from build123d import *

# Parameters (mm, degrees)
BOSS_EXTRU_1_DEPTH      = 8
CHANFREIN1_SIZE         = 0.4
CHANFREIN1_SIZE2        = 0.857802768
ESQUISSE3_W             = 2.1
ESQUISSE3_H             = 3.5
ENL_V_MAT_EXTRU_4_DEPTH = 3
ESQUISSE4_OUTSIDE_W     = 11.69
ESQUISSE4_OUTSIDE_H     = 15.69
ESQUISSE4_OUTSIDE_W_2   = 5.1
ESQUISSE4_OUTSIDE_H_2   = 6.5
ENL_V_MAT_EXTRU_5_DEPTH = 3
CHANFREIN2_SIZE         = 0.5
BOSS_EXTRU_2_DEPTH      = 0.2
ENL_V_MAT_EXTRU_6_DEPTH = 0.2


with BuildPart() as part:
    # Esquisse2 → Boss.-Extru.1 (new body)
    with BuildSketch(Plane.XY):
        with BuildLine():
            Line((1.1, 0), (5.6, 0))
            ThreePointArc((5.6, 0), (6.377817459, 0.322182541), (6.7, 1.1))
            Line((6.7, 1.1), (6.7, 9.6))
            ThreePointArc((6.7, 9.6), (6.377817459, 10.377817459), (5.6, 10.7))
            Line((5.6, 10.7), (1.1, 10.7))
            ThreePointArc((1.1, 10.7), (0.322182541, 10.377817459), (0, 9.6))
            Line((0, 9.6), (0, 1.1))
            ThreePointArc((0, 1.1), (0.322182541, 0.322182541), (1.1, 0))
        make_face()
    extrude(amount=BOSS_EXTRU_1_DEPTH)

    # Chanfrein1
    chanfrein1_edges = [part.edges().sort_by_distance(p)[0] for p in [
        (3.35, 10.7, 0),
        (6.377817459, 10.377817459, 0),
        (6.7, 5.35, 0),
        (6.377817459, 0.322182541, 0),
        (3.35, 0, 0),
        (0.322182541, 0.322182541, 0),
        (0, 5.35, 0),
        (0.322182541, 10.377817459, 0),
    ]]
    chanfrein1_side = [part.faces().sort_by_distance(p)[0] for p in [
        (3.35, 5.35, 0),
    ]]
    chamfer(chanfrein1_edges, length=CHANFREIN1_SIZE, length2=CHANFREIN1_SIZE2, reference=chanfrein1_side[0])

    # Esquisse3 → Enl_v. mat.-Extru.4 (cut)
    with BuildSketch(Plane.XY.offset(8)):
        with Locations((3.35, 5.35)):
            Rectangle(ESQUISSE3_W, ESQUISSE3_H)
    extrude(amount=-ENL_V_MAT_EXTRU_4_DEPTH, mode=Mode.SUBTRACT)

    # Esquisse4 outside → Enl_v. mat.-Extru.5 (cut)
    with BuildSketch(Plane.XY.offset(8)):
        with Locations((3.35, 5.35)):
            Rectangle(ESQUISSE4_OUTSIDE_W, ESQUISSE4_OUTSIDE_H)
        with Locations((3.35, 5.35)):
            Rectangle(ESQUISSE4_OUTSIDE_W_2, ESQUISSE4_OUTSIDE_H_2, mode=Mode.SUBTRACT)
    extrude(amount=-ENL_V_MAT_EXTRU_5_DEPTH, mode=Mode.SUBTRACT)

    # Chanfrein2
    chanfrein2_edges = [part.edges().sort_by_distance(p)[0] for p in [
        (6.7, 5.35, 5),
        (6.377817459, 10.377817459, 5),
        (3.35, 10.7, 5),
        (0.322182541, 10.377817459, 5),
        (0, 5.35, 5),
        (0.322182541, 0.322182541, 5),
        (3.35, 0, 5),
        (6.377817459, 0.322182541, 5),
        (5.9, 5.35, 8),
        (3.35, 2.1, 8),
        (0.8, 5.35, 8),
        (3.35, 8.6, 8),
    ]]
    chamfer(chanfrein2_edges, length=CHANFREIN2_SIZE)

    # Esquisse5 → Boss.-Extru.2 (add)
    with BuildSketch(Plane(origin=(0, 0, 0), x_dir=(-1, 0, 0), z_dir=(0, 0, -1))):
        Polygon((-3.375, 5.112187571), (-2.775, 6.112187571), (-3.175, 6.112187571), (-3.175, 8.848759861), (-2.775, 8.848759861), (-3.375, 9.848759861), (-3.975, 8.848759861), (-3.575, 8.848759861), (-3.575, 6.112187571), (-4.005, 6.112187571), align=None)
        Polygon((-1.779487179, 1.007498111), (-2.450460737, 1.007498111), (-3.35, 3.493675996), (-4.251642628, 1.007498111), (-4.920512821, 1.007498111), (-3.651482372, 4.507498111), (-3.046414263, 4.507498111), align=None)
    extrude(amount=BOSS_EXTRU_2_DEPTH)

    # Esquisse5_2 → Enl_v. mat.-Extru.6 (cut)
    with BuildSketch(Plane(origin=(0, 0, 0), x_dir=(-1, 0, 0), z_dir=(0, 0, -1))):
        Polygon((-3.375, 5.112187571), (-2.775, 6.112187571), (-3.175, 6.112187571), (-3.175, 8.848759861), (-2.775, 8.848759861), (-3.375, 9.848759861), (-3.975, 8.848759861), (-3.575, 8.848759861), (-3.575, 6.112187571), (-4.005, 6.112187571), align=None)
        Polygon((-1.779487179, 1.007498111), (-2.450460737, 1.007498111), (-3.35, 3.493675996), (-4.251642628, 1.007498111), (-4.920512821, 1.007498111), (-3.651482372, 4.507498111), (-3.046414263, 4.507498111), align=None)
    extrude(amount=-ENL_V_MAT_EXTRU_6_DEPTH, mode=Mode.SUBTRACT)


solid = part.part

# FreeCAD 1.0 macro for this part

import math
import FreeCAD as App
import Part
import Sketcher

V = App.Vector
Q = App.Units.Quantity


def edges_at(feature, points):
    """Names of the edges that pass closest to the given points."""
    edges = feature.Shape.Edges
    near = lambda p: min(range(len(edges)), key=lambda i: edges[i].distToShape(Part.Vertex(*p))[0])
    return sorted({f"Edge{near(p) + 1}" for p in points})


def add_polygon(sketch, points):
    """Adds a closed chain of lines whose ends are joined by coincident constraints."""
    first, n = sketch.GeometryCount, len(points)
    for a, b in zip(points, points[1:] + points[:1]):
        sketch.addGeometry(Part.LineSegment(App.Vector(*a, 0), App.Vector(*b, 0)), False)
    for i in range(n):
        sketch.addConstraint(Sketcher.Constraint("Coincident", first + i, 2, first + (i + 1) % n, 1))

doc = App.newDocument("Part")
body = doc.addObject("PartDesign::Body", "Body")
body.AllowCompound = True

# Sketch on XY plane
sketch1 = body.newObject("Sketcher::SketchObject", "Sketch")
sketch1.AttachmentSupport = (doc.getObject("XY_Plane"), [""])
sketch1.MapMode = "FlatFace"
sketch1.addGeometry([
    Part.LineSegment(V(1.1, 0, 0), V(5.6, 0, 0)),  # 0
    Part.ArcOfCircle(Part.Circle(V(5.6, 1.1, 0), V(0, 0, 1), 1.1), math.radians(-90), math.radians(0)),  # 1
    Part.LineSegment(V(6.7, 1.1, 0), V(6.7, 9.6, 0)),  # 2
    Part.ArcOfCircle(Part.Circle(V(5.6, 9.6, 0), V(0, 0, 1), 1.1), math.radians(0), math.radians(90)),  # 3
    Part.LineSegment(V(5.6, 10.7, 0), V(1.1, 10.7, 0)),  # 4
    Part.ArcOfCircle(Part.Circle(V(1.1, 9.6, 0), V(0, 0, 1), 1.1), math.radians(90), math.radians(180)),  # 5
    Part.LineSegment(V(0, 9.6, 0), V(0, 1.1, 0)),  # 6
    Part.ArcOfCircle(Part.Circle(V(1.1, 1.1, 0), V(0, 0, 1), 1.1), math.radians(-180), math.radians(-90)),  # 7
], False)
sketch1.addConstraint([
    Sketcher.Constraint("Tangent", 0, 2, 1, 1),
    Sketcher.Constraint("Tangent", 1, 2, 2, 1),
    Sketcher.Constraint("Tangent", 2, 2, 3, 1),
    Sketcher.Constraint("Tangent", 3, 2, 4, 1),
    Sketcher.Constraint("Tangent", 4, 2, 5, 1),
    Sketcher.Constraint("Tangent", 5, 2, 6, 1),
    Sketcher.Constraint("Tangent", 6, 2, 7, 1),
    Sketcher.Constraint("Tangent", 7, 2, 0, 1),
    Sketcher.Constraint("Horizontal", 0),
    Sketcher.Constraint("Vertical", 2),
    Sketcher.Constraint("Horizontal", 4),
    Sketcher.Constraint("Vertical", 6),
    Sketcher.Constraint("Equal", 1, 3),
    Sketcher.Constraint("Equal", 3, 5),
    Sketcher.Constraint("Equal", 5, 7),
    Sketcher.Constraint("PointOnObject", 0, 2, -1),
    Sketcher.Constraint("PointOnObject", 5, 2, -2),
    Sketcher.Constraint("Radius", 1, Q("1.1 mm")),
    Sketcher.Constraint("DistanceX", 0, 1, 0, 2, Q("4.5 mm")),
    Sketcher.Constraint("DistanceY", 2, 1, 2, 2, Q("8.5 mm")),
])
pad1 = body.newObject("PartDesign::Pad", "Pad")
pad1.Profile = sketch1
pad1.Length = 8
doc.recompute()

chamfer = body.newObject("PartDesign::Chamfer", "Chamfer")
chamfer.Base = (pad1, edges_at(pad1, [
    (3.35, 10.7, 0),
    (6.378, 10.378, 0),
    (6.7, 5.35, 0),
    (6.378, 0.322, 0),
    (3.35, 0, 0),
    (0.322, 0.322, 0),
    (0, 5.35, 0),
    (0.322, 10.378, 0),
]))
chamfer.ChamferType = "Two distances"
chamfer.Size = 0.4
chamfer.Size2 = 0.857803
chamfer.FlipDirection = True

# Sketch on XY plane
sketch2 = body.newObject("Sketcher::SketchObject", "Sketch001")
sketch2.AttachmentSupport = (doc.getObject("XY_Plane"), [""])
sketch2.MapMode = "FlatFace"
sketch2.AttachmentOffset = App.Placement(V(0, 0, 8), App.Rotation())
add_polygon(sketch2, [(2.3, 7.1), (2.3, 3.6), (4.4, 3.6), (4.4, 7.1)])  # lines 0-3
sketch2.addConstraint([
    Sketcher.Constraint("Vertical", 0),
    Sketcher.Constraint("Horizontal", 1),
    Sketcher.Constraint("Vertical", 2),
    Sketcher.Constraint("Horizontal", 3),
    Sketcher.Constraint("DistanceX", 1, 1, 1, 2, Q("2.1 mm")),
    Sketcher.Constraint("DistanceY", 0, 2, 0, 1, Q("3.5 mm")),
    Sketcher.Constraint("DistanceX", -1, 1, 0, 2, Q("2.3 mm")),
    Sketcher.Constraint("DistanceY", -1, 1, 0, 2, Q("3.6 mm")),
])
pocket1 = body.newObject("PartDesign::Pocket", "Pocket")
pocket1.Profile = sketch2
pocket1.Length = 3

# Sketch on XY plane
sketch3 = body.newObject("Sketcher::SketchObject", "Sketch002")
sketch3.AttachmentSupport = (doc.getObject("XY_Plane"), [""])
sketch3.MapMode = "FlatFace"
sketch3.AttachmentOffset = App.Placement(V(0, 0, 8), App.Rotation())
add_polygon(sketch3, [(-2, 13), (-2, -2), (9, -2), (9, 13)])  # lines 0-3
add_polygon(sketch3, [(6, 2), (1, 2), (1, 9), (6, 9)])  # lines 4-7
sketch3.addConstraint([
    Sketcher.Constraint("Vertical", 0),
    Sketcher.Constraint("Horizontal", 1),
    Sketcher.Constraint("Vertical", 2),
    Sketcher.Constraint("Horizontal", 3),
    Sketcher.Constraint("Horizontal", 4),
    Sketcher.Constraint("Vertical", 5),
    Sketcher.Constraint("Horizontal", 6),
    Sketcher.Constraint("Vertical", 7),
    Sketcher.Constraint("DistanceX", 4, 2, 4, 1, Q("5.1 mm")),
    Sketcher.Constraint("DistanceY", 5, 1, 5, 2, Q("6.5 mm")),
    Sketcher.Constraint("DistanceX", 1, 1, 1, 2, Q("11.69 mm")),
    Sketcher.Constraint("DistanceY", 0, 2, 0, 1, Q("15.69 mm")),
    Sketcher.Constraint("DistanceX", -1, 1, 4, 2, Q("0.8 mm")),
    Sketcher.Constraint("DistanceY", -1, 1, 4, 2, Q("2.1 mm")),
    Sketcher.Constraint("DistanceX", 0, 2, -1, 1, Q("2.495 mm")),
    Sketcher.Constraint("DistanceY", 0, 2, -1, 1, Q("2.495 mm")),
])
pocket2 = body.newObject("PartDesign::Pocket", "Pocket001")
pocket2.Profile = sketch3
pocket2.Length = 3
doc.recompute()

chamfer2 = body.newObject("PartDesign::Chamfer", "Chamfer001")
chamfer2.Base = (pocket2, edges_at(pocket2, [
    (6.7, 5.35, 5),
    (6.378, 10.378, 5),
    (3.35, 10.7, 5),
    (0.322, 10.378, 5),
    (0, 5.35, 5),
    (0.322, 0.322, 5),
    (3.35, 0, 5),
    (6.378, 0.322, 5),
    (5.9, 5.35, 8),
    (3.35, 2.1, 8),
    (0.8, 5.35, 8),
    (3.35, 8.6, 8),
]))
chamfer2.Size = 0.5

# Sketch on XY plane
sketch4 = body.newObject("Sketcher::SketchObject", "Sketch003")
sketch4.AttachmentSupport = (doc.getObject("XY_Plane"), [""])
sketch4.MapMode = "FlatFace"
add_polygon(sketch4, [(3.38, 5.11), (2.77, 6.11), (3.17, 6.11), (3.17, 8.85), (2.77, 8.85), (3.38, 9.85), (3.98, 8.85), (3.58, 8.85), (3.58, 6.11), (4, 6.11)])  # lines 0-9
add_polygon(sketch4, [(2.45, 1.01), (1.78, 1.01), (3.05, 4.51), (3.65, 4.51), (4.92, 1.01), (4.25, 1.01), (3.35, 3.49)])  # lines 10-16
sketch4.addConstraint([
    Sketcher.Constraint("Horizontal", 1),
    Sketcher.Constraint("Vertical", 2),
    Sketcher.Constraint("Horizontal", 3),
    Sketcher.Constraint("Horizontal", 6),
    Sketcher.Constraint("Vertical", 7),
    Sketcher.Constraint("Horizontal", 8),
    Sketcher.Constraint("Horizontal", 10),
    Sketcher.Constraint("Horizontal", 12),
    Sketcher.Constraint("Horizontal", 14),
    Sketcher.Constraint("Parallel", 0, 5),
    Sketcher.Constraint("Horizontal", 3, 2, 5, 2),
    Sketcher.Constraint("Horizontal", 1, 2, 7, 2),
    Sketcher.Constraint("Horizontal", 10, 2, 13, 2),
    Sketcher.Constraint("Vertical", 0, 2, 3, 2),
    Sketcher.Constraint("Vertical", 4, 2, 9, 2),
    Sketcher.Constraint("Equal", 3, 6),
    Sketcher.Constraint("Equal", 0, 4),
    Sketcher.Constraint("DistanceX", 1, 1, 1, 2, Q("0.4 mm")),
    Sketcher.Constraint("DistanceY", 2, 2, 4, 2, Q("1 mm")),
    Sketcher.Constraint("DistanceX", 8, 1, 8, 2, Q("0.43 mm")),
    Sketcher.Constraint("DistanceX", 2, 2, 4, 2, Q("0.2 mm")),
    Sketcher.Constraint("DistanceY", 13, 2, 12, 2, Q("3.5 mm")),
    Sketcher.Constraint("DistanceX", -1, 1, 15, 2, Q("3.35 mm")),
    Sketcher.Constraint("DistanceX", -1, 1, 0, 2, Q("2.775 mm")),
    Sketcher.Constraint("DistanceX", 12, 1, 12, 2, Q("0.605068 mm")),
    Sketcher.Constraint("DistanceX", 14, 2, 14, 1, Q("0.66887 mm")),
    Sketcher.Constraint("DistanceY", -1, 1, 10, 2, Q("1.007498 mm")),
    Sketcher.Constraint("DistanceX", 11, 2, 13, 2, Q("1.874099 mm")),
    Sketcher.Constraint("Distance", 16, Q("2.643908 mm")),
    Sketcher.Constraint("DistanceX", 10, 2, 10, 1, Q("0.670974 mm")),
    Sketcher.Constraint("DistanceY", 2, 1, 2, 2, Q("2.736572 mm")),
    Sketcher.Constraint("DistanceY", -1, 1, 2, 2, Q("8.84876 mm")),
    Sketcher.Constraint("DistanceX", -1, 1, 16, 2, Q("2.450461 mm")),
    Sketcher.Constraint("DistanceX", 16, 2, 14, 2, Q("1.801182 mm")),
])
pad2 = body.newObject("PartDesign::Pad", "Pad001")
pad2.Profile = sketch4
pad2.Length = 0.2
pad2.Reversed = True

# Sketch on XY plane
sketch5 = body.newObject("Sketcher::SketchObject", "Sketch004")
sketch5.AttachmentSupport = (doc.getObject("XY_Plane"), [""])
sketch5.MapMode = "FlatFace"
add_polygon(sketch5, [(3.38, 5.11), (2.77, 6.11), (3.17, 6.11), (3.17, 8.85), (2.77, 8.85), (3.38, 9.85), (3.98, 8.85), (3.58, 8.85), (3.58, 6.11), (4, 6.11)])  # lines 0-9
add_polygon(sketch5, [(2.45, 1.01), (1.78, 1.01), (3.05, 4.51), (3.65, 4.51), (4.92, 1.01), (4.25, 1.01), (3.35, 3.49)])  # lines 10-16
sketch5.addConstraint([
    Sketcher.Constraint("Horizontal", 1),
    Sketcher.Constraint("Vertical", 2),
    Sketcher.Constraint("Horizontal", 3),
    Sketcher.Constraint("Horizontal", 6),
    Sketcher.Constraint("Vertical", 7),
    Sketcher.Constraint("Horizontal", 8),
    Sketcher.Constraint("Horizontal", 10),
    Sketcher.Constraint("Horizontal", 12),
    Sketcher.Constraint("Horizontal", 14),
    Sketcher.Constraint("Parallel", 0, 5),
    Sketcher.Constraint("Horizontal", 3, 2, 5, 2),
    Sketcher.Constraint("Horizontal", 1, 2, 7, 2),
    Sketcher.Constraint("Horizontal", 10, 2, 13, 2),
    Sketcher.Constraint("Vertical", 0, 2, 3, 2),
    Sketcher.Constraint("Vertical", 4, 2, 9, 2),
    Sketcher.Constraint("Equal", 3, 6),
    Sketcher.Constraint("Equal", 0, 4),
    Sketcher.Constraint("DistanceX", 1, 1, 1, 2, Q("0.4 mm")),
    Sketcher.Constraint("DistanceY", 2, 2, 4, 2, Q("1 mm")),
    Sketcher.Constraint("DistanceX", 8, 1, 8, 2, Q("0.43 mm")),
    Sketcher.Constraint("DistanceX", 2, 2, 4, 2, Q("0.2 mm")),
    Sketcher.Constraint("DistanceY", 13, 2, 12, 2, Q("3.5 mm")),
    Sketcher.Constraint("DistanceX", -1, 1, 15, 2, Q("3.35 mm")),
    Sketcher.Constraint("DistanceX", -1, 1, 0, 2, Q("2.775 mm")),
    Sketcher.Constraint("DistanceX", 12, 1, 12, 2, Q("0.605068 mm")),
    Sketcher.Constraint("DistanceX", 14, 2, 14, 1, Q("0.66887 mm")),
    Sketcher.Constraint("DistanceY", -1, 1, 10, 2, Q("1.007498 mm")),
    Sketcher.Constraint("DistanceX", 11, 2, 13, 2, Q("1.874099 mm")),
    Sketcher.Constraint("Distance", 16, Q("2.643908 mm")),
    Sketcher.Constraint("DistanceX", 10, 2, 10, 1, Q("0.670974 mm")),
    Sketcher.Constraint("DistanceY", 2, 1, 2, 2, Q("2.736572 mm")),
    Sketcher.Constraint("DistanceY", -1, 1, 2, 2, Q("8.84876 mm")),
    Sketcher.Constraint("DistanceX", -1, 1, 16, 2, Q("2.450461 mm")),
    Sketcher.Constraint("DistanceX", 16, 2, 14, 2, Q("1.801182 mm")),
])
pocket3 = body.newObject("PartDesign::Pocket", "Pocket002")
pocket3.Profile = sketch5
pocket3.Length = 0.2
pocket3.Reversed = True

doc.recompute()
